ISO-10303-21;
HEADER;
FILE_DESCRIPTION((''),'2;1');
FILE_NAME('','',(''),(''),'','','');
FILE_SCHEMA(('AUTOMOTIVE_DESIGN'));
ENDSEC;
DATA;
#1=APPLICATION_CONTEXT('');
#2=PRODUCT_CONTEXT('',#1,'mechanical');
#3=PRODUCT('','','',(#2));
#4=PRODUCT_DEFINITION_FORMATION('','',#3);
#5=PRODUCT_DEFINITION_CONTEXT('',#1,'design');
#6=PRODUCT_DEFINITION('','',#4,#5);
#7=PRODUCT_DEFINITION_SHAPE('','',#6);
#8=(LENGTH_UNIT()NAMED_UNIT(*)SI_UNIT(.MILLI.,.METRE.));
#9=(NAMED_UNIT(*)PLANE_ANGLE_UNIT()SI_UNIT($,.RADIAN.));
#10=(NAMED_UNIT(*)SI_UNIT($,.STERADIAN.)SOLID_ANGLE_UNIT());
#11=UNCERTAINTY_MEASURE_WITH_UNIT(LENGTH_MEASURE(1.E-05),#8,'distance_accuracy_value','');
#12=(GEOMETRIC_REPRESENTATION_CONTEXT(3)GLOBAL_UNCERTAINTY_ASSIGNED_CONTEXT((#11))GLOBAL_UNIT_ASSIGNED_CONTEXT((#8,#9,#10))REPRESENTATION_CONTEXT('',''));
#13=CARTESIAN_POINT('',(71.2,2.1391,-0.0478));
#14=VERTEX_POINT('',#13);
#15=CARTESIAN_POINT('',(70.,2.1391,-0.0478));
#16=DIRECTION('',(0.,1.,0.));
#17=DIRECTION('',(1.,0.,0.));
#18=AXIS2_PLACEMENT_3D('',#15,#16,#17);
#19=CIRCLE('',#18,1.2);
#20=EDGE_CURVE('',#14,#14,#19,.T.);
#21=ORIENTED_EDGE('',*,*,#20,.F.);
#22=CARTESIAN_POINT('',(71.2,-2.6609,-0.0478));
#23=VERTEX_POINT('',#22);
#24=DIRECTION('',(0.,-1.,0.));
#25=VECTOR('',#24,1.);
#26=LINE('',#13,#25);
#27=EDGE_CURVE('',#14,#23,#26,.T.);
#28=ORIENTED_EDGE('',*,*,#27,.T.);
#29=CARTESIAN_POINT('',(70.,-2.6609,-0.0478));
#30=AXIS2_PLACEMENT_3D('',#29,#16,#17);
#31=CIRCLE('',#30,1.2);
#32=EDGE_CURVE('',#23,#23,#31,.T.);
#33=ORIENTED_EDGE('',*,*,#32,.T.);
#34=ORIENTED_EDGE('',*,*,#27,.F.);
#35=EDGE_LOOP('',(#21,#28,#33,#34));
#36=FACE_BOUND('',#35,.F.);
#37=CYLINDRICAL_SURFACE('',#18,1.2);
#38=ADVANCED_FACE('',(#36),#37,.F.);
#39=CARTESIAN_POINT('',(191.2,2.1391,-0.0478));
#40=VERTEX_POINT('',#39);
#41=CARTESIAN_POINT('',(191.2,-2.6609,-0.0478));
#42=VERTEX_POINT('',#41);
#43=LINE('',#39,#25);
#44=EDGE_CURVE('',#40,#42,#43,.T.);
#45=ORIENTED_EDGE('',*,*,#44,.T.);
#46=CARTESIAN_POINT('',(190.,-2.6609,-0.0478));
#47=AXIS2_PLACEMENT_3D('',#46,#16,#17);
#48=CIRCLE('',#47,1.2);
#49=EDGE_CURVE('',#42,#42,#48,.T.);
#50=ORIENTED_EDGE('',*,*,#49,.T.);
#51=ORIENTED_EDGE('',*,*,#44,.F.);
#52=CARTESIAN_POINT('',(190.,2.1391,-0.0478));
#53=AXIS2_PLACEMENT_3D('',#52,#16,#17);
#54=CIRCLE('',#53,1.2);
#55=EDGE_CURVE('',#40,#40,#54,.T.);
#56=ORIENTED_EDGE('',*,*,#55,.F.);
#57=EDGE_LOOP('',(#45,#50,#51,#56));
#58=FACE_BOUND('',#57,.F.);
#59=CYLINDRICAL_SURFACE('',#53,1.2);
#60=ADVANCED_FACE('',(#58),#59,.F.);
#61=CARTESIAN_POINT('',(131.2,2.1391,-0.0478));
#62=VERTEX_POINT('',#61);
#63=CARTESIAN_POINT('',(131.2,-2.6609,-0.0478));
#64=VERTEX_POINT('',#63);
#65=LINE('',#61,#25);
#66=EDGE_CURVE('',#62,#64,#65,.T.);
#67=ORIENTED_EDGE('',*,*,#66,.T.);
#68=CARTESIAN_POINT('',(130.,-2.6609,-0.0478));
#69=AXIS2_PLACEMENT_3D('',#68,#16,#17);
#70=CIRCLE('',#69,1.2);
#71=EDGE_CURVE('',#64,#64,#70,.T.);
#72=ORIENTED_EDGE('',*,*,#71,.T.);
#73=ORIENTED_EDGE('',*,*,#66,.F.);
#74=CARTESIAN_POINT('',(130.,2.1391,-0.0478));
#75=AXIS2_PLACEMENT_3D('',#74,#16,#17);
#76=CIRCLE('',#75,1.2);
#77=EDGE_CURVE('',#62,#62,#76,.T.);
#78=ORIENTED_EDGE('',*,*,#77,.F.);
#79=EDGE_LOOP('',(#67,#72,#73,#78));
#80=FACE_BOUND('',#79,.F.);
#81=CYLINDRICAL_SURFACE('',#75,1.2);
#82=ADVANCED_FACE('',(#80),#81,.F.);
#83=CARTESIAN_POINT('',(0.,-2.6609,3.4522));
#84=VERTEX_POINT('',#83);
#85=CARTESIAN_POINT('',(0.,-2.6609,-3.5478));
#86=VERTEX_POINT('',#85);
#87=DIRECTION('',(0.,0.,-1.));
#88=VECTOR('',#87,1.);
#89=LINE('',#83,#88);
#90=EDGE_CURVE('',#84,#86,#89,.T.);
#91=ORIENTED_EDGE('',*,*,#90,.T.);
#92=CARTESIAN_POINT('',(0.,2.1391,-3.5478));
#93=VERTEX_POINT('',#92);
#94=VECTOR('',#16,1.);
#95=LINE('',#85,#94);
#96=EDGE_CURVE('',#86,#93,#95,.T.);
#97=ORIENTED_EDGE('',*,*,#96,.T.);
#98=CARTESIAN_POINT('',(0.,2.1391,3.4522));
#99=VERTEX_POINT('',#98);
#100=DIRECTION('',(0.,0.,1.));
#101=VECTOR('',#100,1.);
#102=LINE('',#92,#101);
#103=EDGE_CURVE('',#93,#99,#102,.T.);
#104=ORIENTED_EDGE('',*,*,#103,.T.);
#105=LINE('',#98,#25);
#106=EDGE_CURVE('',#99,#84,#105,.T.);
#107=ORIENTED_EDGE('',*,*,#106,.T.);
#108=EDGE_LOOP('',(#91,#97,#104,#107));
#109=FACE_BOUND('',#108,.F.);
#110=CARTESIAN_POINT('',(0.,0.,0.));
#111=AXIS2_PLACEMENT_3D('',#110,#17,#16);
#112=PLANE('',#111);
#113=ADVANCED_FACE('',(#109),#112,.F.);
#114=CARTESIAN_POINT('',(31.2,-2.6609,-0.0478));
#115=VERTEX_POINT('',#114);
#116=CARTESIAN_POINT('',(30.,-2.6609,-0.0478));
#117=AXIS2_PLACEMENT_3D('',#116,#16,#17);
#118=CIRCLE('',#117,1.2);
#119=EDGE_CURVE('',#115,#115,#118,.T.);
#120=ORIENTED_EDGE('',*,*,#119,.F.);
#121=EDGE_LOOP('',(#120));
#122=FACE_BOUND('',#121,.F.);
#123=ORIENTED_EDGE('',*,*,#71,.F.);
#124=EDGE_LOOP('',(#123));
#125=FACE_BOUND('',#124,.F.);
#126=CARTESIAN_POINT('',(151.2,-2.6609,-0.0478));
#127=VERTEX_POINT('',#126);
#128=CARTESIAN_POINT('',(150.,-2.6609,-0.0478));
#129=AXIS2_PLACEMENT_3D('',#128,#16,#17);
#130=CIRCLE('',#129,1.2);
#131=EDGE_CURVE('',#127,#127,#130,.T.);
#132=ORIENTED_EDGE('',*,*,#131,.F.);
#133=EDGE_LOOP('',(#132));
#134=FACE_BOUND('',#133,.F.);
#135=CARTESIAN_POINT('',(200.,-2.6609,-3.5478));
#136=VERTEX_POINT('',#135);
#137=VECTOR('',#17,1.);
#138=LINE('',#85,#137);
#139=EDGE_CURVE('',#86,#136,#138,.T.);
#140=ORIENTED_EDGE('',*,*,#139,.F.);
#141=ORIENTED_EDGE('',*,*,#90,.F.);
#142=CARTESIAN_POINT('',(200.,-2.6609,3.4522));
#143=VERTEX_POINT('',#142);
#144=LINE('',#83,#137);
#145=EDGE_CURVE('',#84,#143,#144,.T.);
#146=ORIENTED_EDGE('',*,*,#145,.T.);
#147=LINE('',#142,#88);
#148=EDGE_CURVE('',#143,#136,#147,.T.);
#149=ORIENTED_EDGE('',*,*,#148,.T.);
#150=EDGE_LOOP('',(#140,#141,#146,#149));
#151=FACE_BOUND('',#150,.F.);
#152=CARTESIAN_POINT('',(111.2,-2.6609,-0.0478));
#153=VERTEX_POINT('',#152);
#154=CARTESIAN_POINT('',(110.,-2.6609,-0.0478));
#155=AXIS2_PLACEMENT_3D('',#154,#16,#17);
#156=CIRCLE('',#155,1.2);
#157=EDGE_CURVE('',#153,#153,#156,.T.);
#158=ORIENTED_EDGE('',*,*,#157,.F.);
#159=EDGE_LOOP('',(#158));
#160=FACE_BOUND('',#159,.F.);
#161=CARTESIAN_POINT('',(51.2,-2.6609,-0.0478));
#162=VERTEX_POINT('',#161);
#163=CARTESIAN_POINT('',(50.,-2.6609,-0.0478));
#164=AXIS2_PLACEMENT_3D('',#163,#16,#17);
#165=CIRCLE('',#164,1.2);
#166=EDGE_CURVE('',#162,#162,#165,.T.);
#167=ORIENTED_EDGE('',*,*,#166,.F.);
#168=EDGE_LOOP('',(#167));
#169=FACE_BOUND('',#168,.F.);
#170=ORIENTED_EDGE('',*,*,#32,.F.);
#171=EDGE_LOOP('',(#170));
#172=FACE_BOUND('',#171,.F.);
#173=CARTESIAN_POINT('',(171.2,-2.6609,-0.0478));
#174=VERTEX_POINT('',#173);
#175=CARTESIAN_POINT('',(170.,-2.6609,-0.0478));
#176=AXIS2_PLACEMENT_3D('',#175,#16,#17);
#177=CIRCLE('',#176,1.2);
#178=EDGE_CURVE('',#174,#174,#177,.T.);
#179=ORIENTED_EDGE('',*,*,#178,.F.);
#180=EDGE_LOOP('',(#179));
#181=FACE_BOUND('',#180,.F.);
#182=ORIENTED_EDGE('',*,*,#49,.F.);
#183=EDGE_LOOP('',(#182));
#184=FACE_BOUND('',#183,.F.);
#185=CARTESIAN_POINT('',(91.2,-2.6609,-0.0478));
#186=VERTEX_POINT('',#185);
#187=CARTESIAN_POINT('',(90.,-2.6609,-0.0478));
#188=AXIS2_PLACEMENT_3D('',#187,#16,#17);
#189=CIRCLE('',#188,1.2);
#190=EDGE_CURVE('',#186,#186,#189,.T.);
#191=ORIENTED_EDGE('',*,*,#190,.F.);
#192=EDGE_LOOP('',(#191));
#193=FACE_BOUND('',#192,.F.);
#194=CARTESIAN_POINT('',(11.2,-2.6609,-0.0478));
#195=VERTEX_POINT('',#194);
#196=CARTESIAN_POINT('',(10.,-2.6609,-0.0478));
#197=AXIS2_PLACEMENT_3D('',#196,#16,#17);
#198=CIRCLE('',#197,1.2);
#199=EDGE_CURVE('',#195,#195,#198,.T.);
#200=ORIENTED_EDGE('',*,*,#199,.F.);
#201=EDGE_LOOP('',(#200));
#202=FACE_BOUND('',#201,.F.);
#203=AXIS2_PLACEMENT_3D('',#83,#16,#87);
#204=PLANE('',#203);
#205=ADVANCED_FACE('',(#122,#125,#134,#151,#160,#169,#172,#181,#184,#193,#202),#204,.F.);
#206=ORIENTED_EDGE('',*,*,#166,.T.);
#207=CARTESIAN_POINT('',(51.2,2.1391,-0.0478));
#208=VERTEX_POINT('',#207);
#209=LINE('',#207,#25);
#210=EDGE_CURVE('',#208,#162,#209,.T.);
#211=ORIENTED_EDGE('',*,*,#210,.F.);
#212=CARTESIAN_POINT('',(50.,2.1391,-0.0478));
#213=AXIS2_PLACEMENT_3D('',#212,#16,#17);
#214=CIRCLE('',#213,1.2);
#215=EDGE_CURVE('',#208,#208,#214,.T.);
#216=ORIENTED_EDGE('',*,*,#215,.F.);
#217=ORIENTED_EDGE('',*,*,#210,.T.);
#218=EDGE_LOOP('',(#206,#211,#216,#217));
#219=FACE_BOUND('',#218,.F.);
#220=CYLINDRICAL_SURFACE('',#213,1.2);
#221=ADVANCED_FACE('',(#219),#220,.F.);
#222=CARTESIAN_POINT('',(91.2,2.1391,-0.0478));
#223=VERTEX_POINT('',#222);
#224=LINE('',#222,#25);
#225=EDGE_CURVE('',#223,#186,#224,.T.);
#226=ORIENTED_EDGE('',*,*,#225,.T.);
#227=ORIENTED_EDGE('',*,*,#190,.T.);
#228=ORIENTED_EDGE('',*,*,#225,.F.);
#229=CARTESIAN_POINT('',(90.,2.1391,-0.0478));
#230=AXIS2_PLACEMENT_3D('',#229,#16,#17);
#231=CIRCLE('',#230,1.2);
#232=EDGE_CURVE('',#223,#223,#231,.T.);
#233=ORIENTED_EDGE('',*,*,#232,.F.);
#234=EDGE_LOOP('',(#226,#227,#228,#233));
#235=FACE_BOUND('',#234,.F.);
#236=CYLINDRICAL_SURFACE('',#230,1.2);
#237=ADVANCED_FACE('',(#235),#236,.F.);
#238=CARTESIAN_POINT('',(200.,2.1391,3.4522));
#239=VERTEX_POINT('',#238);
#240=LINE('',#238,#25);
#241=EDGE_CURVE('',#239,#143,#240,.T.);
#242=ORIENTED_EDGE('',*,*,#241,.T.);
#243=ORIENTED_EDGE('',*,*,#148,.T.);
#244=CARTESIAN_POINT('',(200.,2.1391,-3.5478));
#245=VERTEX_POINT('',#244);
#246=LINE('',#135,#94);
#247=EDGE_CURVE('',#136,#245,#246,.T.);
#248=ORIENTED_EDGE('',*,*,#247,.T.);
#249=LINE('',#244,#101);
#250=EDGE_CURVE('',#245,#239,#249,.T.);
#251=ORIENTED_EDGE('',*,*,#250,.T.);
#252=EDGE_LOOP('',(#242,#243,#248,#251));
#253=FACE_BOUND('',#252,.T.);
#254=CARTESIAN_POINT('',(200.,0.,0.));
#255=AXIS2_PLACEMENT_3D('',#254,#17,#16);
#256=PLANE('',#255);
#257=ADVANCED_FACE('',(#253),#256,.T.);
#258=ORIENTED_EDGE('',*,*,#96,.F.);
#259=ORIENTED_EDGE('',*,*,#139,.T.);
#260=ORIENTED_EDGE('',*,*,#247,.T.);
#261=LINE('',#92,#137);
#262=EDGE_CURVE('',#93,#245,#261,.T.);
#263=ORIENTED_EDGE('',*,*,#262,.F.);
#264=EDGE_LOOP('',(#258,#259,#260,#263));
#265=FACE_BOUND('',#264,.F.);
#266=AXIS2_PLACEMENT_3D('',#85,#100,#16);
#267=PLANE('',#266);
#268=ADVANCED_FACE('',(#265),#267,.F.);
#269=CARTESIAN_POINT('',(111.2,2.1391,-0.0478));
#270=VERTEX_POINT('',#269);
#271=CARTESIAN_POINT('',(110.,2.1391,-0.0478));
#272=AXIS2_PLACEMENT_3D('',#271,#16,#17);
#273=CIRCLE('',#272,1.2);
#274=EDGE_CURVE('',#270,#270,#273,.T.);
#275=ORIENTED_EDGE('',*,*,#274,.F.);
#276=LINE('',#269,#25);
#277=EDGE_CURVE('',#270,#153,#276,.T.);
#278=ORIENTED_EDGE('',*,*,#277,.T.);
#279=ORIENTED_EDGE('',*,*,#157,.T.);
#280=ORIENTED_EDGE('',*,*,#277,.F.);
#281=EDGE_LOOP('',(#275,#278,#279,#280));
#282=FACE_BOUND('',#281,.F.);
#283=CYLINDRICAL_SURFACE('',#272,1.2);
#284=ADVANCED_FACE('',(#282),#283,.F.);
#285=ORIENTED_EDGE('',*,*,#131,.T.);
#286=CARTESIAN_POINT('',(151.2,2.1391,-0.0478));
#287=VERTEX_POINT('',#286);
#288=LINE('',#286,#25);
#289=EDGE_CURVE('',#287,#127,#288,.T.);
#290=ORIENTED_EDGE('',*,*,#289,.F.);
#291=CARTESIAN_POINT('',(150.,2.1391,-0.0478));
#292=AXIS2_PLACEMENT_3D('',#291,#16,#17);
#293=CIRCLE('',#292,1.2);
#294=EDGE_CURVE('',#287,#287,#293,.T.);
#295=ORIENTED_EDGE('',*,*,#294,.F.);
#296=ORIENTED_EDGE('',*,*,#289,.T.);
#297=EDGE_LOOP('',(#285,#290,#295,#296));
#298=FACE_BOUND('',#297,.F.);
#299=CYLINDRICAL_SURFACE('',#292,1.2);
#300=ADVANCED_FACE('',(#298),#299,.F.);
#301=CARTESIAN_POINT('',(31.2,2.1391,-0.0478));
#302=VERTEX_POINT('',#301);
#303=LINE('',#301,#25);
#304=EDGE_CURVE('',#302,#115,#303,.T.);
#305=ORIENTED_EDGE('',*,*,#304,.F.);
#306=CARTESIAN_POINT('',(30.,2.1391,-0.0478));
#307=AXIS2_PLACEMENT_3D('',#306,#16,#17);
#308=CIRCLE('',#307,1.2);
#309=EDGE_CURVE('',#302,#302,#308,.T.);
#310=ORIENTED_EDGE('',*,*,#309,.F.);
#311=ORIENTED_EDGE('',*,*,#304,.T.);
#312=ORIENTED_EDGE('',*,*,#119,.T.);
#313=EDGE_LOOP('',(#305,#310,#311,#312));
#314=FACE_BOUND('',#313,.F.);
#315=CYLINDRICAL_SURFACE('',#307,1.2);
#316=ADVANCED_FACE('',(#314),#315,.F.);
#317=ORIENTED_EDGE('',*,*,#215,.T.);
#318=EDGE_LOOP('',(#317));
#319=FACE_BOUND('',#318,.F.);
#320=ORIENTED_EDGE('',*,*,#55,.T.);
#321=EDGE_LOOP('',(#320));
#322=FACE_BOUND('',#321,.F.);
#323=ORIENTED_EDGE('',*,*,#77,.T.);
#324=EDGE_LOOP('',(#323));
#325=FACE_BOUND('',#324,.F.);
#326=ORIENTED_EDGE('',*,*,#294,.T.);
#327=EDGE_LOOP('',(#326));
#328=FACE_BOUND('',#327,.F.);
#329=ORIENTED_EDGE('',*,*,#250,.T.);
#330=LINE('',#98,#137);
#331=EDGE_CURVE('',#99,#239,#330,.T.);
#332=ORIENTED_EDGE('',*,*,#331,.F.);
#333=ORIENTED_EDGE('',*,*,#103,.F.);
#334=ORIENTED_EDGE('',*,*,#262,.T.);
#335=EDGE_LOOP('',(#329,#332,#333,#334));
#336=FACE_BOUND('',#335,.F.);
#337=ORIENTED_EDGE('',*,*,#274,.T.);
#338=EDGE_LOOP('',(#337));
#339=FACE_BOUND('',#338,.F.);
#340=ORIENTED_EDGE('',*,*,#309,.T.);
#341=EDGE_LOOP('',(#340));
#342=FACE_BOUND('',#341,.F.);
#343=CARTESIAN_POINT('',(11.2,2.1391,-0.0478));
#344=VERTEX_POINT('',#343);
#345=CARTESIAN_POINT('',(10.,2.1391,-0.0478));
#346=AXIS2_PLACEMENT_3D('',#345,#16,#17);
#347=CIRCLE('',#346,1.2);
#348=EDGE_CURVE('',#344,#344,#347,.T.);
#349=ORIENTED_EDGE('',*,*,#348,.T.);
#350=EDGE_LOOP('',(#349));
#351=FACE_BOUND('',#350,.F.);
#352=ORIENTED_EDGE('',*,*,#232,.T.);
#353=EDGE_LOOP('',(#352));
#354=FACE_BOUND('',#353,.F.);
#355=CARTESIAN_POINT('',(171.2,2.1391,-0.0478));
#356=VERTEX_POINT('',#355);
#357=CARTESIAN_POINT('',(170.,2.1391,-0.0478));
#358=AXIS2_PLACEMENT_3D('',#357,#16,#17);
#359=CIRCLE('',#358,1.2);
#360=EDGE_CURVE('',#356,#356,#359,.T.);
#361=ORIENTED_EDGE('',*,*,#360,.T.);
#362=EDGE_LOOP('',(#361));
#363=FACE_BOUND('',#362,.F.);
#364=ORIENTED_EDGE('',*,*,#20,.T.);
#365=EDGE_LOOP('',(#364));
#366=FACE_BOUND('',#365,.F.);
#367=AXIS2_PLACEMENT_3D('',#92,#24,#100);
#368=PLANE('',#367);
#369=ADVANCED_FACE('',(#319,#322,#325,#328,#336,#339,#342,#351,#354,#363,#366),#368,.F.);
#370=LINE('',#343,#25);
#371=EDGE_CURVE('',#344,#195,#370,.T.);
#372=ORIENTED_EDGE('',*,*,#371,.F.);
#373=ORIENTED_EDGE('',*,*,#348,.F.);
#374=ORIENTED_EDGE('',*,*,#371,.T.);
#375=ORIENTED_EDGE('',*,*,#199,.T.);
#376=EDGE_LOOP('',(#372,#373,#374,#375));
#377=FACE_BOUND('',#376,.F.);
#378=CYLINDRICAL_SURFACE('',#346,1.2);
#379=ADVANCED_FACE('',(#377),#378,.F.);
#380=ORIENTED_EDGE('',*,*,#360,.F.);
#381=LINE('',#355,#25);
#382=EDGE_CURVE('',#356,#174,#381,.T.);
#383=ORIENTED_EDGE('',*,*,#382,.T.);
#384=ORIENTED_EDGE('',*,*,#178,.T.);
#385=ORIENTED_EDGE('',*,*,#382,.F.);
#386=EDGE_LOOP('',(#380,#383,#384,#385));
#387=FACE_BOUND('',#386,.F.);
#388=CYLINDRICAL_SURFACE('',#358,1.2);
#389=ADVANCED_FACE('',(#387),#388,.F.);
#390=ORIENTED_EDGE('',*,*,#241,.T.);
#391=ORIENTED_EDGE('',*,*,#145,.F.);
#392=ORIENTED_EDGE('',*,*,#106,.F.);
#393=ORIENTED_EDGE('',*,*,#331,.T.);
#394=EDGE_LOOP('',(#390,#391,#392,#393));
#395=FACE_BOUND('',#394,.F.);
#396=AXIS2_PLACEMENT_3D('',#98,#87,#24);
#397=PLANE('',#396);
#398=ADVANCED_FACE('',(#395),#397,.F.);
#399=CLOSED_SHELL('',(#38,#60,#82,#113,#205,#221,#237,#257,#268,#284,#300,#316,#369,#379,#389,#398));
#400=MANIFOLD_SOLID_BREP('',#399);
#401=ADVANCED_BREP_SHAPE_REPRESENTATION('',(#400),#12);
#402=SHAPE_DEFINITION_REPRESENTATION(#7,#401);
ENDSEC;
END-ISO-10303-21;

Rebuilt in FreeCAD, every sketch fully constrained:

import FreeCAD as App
import Part
import Sketcher
from FreeCAD import Vector
Q = App.Units.Quantity


def add_polygon(sketch, points):
    """Adds a closed chain of lines whose ends are joined by coincident constraints."""
    first, n = sketch.GeometryCount, len(points)
    for a, b in zip(points, points[1:] + points[:1]):
        sketch.addGeometry(Part.LineSegment(App.Vector(*a, 0), App.Vector(*b, 0)), False)
    for i in range(n):
        sketch.addConstraint(Sketcher.Constraint("Coincident", first + i, 2, first + (i + 1) % n, 1))

doc = App.newDocument("Part")
body = doc.addObject("PartDesign::Body", "Body")

sketch1 = doc.addObject("Sketcher::SketchObject", "Sketch")
body.addObject(sketch1)
sketch1.AttachmentSupport = (doc.YZ_Plane, [""])
sketch1.MapMode = "FlatFace"
add_polygon(sketch1, [(2.1, -3.5), (2.1, 3.5), (-2.7, 3.5), (-2.7, -3.5)])
sketch1.addConstraint(Sketcher.Constraint("Vertical", 0))
sketch1.addConstraint(Sketcher.Constraint("Horizontal", 1))
sketch1.addConstraint(Sketcher.Constraint("Vertical", 2))
sketch1.addConstraint(Sketcher.Constraint("Horizontal", 3))
sketch1.addConstraint(Sketcher.Constraint("DistanceY", 0, 1, 0, 2, Q("7 mm")))
sketch1.addConstraint(Sketcher.Constraint("DistanceX", 1, 2, 1, 1, Q("4.8 mm")))
sketch1.addConstraint(Sketcher.Constraint("DistanceX", -1, 1, 0, 2, Q("2.139 mm")))
sketch1.addConstraint(Sketcher.Constraint("DistanceY", -1, 1, 0, 2, Q("3.4522 mm")))
pad1 = doc.addObject("PartDesign::Pad", "Pad")
body.addObject(pad1)
pad1.Profile = sketch1
pad1.Length = 200

sketch2 = doc.addObject("Sketcher::SketchObject", "Sketch001")
body.addObject(sketch2)
sketch2.AttachmentSupport = (doc.XZ_Plane, [""])
sketch2.MapMode = "FlatFace"
sketch2.AttachmentOffset = App.Placement(Vector(0, 0, -2.1391), App.Rotation())
sketch2.addGeometry(Part.Circle(Vector(10, 0, 0), Vector(0, 0, 1), 1.2), False)
sketch2.addGeometry(Part.Circle(Vector(30, 0, 0), Vector(0, 0, 1), 1.2), False)
sketch2.addGeometry(Part.Circle(Vector(50, 0, 0), Vector(0, 0, 1), 1.2), False)
sketch2.addGeometry(Part.Circle(Vector(70, 0, 0), Vector(0, 0, 1), 1.2), False)
sketch2.addGeometry(Part.Circle(Vector(90, 0, 0), Vector(0, 0, 1), 1.2), False)
sketch2.addGeometry(Part.Circle(Vector(110, 0, 0), Vector(0, 0, 1), 1.2), False)
sketch2.addGeometry(Part.Circle(Vector(130, 0, 0), Vector(0, 0, 1), 1.2), False)
sketch2.addGeometry(Part.Circle(Vector(150, 0, 0), Vector(0, 0, 1), 1.2), False)
sketch2.addGeometry(Part.Circle(Vector(170, 0, 0), Vector(0, 0, 1), 1.2), False)
sketch2.addGeometry(Part.Circle(Vector(190, 0, 0), Vector(0, 0, 1), 1.2), False)
sketch2.addConstraint(Sketcher.Constraint("Equal", 0, 1))
sketch2.addConstraint(Sketcher.Constraint("Equal", 1, 2))
sketch2.addConstraint(Sketcher.Constraint("Equal", 2, 3))
sketch2.addConstraint(Sketcher.Constraint("Equal", 3, 4))
sketch2.addConstraint(Sketcher.Constraint("Equal", 4, 5))
sketch2.addConstraint(Sketcher.Constraint("Equal", 5, 6))
sketch2.addConstraint(Sketcher.Constraint("Equal", 6, 7))
sketch2.addConstraint(Sketcher.Constraint("Equal", 7, 8))
sketch2.addConstraint(Sketcher.Constraint("Equal", 8, 9))
sketch2.addConstraint(Sketcher.Constraint("Horizontal", 0, 3, 1, 3))
sketch2.addConstraint(Sketcher.Constraint("Horizontal", 1, 3, 2, 3))
sketch2.addConstraint(Sketcher.Constraint("Horizontal", 2, 3, 3, 3))
sketch2.addConstraint(Sketcher.Constraint("Horizontal", 3, 3, 4, 3))
sketch2.addConstraint(Sketcher.Constraint("Horizontal", 4, 3, 5, 3))
sketch2.addConstraint(Sketcher.Constraint("Horizontal", 5, 3, 6, 3))
sketch2.addConstraint(Sketcher.Constraint("Horizontal", 6, 3, 7, 3))
sketch2.addConstraint(Sketcher.Constraint("Horizontal", 7, 3, 8, 3))
sketch2.addConstraint(Sketcher.Constraint("Horizontal", 8, 3, 9, 3))
sketch2.addConstraint(Sketcher.Constraint("Diameter", 0, Q("2.4 mm")))
sketch2.addConstraint(Sketcher.Constraint("DistanceX", -1, 1, 0, 3, Q("10 mm")))
sketch2.addConstraint(Sketcher.Constraint("DistanceX", 0, 3, 1, 3, Q("20 mm")))
sketch2.addConstraint(Sketcher.Constraint("DistanceX", 1, 3, 2, 3, Q("20 mm")))
sketch2.addConstraint(Sketcher.Constraint("DistanceX", 2, 3, 3, 3, Q("20 mm")))
sketch2.addConstraint(Sketcher.Constraint("DistanceX", 3, 3, 4, 3, Q("20 mm")))
sketch2.addConstraint(Sketcher.Constraint("DistanceX", 4, 3, 5, 3, Q("20 mm")))
sketch2.addConstraint(Sketcher.Constraint("DistanceX", 5, 3, 6, 3, Q("20 mm")))
sketch2.addConstraint(Sketcher.Constraint("DistanceX", 6, 3, 7, 3, Q("20 mm")))
sketch2.addConstraint(Sketcher.Constraint("DistanceX", 7, 3, 8, 3, Q("20 mm")))
sketch2.addConstraint(Sketcher.Constraint("DistanceX", 8, 3, 9, 3, Q("20 mm")))
sketch2.addConstraint(Sketcher.Constraint("DistanceY", 0, 3, -1, 1, Q("0.0478 mm")))
pocket1 = doc.addObject("PartDesign::Pocket", "Pocket")
body.addObject(pocket1)
pocket1.Profile = sketch2
pocket1.Type = "ThroughAll"
pocket1.Reversed = True

doc.recompute()
